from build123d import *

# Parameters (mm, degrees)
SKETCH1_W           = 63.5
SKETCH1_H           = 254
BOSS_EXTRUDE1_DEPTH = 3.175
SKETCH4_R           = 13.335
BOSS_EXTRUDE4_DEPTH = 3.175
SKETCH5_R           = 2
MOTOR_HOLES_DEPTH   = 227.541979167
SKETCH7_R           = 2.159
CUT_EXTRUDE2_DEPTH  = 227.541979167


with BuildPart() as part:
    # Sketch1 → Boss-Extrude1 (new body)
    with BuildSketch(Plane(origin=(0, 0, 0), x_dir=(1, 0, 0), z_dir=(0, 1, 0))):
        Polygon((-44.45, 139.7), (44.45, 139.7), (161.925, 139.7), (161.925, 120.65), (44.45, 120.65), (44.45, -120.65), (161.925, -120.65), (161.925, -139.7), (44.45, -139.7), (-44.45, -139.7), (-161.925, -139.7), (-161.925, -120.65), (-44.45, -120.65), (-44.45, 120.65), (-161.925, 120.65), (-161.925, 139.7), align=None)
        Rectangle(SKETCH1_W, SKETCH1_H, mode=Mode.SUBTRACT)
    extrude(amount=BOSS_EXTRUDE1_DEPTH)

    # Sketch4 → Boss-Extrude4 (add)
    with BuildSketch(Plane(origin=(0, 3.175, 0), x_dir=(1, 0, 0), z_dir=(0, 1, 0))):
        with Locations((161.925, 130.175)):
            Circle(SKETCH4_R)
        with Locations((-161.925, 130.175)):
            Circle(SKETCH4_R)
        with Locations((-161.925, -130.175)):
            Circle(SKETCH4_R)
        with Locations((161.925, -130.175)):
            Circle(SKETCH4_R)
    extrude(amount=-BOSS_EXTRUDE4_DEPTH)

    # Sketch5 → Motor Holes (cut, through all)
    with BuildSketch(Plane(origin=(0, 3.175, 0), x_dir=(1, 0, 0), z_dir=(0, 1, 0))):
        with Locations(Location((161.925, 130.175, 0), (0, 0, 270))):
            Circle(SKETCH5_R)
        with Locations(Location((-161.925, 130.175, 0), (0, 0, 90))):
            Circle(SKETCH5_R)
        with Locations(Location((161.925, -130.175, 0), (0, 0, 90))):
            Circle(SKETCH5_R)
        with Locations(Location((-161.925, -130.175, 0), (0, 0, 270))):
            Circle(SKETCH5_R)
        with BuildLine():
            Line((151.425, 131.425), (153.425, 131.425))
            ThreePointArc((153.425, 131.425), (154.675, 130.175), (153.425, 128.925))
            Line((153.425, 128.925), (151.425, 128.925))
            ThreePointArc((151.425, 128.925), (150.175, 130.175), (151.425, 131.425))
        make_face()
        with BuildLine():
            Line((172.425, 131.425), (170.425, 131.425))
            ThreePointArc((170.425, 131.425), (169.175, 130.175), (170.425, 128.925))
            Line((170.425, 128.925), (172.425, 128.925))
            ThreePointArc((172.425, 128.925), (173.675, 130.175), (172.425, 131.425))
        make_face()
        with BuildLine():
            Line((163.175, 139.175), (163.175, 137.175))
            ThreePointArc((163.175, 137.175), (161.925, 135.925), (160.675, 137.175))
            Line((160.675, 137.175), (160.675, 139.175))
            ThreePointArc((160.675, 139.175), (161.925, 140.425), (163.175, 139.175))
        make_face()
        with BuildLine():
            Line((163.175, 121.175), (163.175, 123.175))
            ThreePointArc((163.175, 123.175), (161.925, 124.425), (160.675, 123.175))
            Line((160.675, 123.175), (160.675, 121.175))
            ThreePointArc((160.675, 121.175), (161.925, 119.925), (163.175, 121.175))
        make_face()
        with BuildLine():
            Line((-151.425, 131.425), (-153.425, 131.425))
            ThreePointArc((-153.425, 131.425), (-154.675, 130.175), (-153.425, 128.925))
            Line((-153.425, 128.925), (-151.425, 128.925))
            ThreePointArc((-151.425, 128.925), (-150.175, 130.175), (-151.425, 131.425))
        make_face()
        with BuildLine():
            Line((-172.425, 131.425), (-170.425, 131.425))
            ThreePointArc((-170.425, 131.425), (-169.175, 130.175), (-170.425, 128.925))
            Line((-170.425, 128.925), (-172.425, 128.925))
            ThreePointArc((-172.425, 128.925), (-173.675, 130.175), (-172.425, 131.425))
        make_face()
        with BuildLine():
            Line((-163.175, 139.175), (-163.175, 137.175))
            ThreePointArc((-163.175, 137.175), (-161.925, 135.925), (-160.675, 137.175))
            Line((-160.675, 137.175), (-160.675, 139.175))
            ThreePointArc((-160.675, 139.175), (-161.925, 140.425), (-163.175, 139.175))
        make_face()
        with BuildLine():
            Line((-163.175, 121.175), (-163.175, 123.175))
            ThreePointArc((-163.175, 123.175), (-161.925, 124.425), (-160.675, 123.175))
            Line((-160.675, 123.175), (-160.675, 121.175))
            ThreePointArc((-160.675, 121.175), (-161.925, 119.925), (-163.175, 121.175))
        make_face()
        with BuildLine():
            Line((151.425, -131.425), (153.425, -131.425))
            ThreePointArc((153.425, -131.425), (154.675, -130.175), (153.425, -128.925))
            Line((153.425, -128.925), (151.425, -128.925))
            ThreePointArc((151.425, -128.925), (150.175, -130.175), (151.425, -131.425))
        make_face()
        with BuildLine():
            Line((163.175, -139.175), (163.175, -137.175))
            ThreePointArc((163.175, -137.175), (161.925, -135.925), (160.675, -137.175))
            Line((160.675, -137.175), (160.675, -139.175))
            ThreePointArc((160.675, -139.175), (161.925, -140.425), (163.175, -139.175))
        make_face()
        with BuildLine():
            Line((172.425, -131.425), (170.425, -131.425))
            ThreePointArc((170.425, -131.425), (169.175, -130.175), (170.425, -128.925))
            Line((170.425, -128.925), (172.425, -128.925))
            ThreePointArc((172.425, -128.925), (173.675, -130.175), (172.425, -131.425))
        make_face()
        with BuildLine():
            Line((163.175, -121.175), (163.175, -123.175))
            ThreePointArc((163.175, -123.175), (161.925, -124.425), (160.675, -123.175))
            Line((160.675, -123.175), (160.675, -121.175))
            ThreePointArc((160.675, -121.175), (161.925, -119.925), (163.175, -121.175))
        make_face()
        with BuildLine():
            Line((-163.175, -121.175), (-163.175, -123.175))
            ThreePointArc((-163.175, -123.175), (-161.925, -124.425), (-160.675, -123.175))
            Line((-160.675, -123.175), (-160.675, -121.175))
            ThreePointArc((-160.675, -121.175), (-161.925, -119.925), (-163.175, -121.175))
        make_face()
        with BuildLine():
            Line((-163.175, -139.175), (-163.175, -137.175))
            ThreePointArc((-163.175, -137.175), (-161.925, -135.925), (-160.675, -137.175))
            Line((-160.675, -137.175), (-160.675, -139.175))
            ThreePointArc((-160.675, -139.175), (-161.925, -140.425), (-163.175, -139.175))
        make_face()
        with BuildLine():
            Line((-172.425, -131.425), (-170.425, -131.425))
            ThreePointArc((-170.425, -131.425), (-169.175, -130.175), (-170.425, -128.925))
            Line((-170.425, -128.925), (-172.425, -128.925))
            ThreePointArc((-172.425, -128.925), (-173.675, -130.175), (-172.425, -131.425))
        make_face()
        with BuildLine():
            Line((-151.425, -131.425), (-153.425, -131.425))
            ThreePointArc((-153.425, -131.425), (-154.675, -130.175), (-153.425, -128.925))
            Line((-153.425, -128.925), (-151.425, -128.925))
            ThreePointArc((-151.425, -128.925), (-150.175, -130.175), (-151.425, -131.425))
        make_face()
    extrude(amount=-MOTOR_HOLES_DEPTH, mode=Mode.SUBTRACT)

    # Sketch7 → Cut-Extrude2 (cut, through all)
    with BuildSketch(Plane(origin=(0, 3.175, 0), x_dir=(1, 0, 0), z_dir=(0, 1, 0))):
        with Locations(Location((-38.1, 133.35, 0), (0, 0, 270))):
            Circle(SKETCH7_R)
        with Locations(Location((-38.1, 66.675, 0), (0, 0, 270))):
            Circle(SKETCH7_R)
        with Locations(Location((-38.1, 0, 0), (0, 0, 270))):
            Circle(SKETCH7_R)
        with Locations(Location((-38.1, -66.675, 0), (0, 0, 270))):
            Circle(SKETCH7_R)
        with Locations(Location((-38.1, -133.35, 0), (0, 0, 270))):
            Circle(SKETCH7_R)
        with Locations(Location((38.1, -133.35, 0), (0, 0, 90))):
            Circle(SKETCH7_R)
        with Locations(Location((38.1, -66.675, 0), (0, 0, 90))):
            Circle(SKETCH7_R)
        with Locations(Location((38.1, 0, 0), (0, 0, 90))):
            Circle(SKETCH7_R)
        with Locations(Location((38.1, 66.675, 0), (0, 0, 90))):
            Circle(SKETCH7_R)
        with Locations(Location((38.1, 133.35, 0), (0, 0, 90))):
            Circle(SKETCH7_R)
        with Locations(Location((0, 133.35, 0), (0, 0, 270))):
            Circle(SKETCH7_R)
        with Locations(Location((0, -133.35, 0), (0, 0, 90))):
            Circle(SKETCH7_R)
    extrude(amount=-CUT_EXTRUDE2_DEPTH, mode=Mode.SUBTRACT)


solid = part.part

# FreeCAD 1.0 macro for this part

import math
import FreeCAD as App
import Part
import Sketcher

V = App.Vector
Q = App.Units.Quantity


def add_polygon(sketch, points):
    """Adds a closed chain of lines whose ends are joined by coincident constraints."""
    first, n = sketch.GeometryCount, len(points)
    for a, b in zip(points, points[1:] + points[:1]):
        sketch.addGeometry(Part.LineSegment(App.Vector(*a, 0), App.Vector(*b, 0)), False)
    for i in range(n):
        sketch.addConstraint(Sketcher.Constraint("Coincident", first + i, 2, first + (i + 1) % n, 1))

doc = App.newDocument("Part")
body = doc.addObject("PartDesign::Body", "Body")

sketch1 = doc.addObject("Sketcher::SketchObject", "Sketch")
body.addObject(sketch1)
sketch1.AttachmentSupport = (doc.XZ_Plane, [""])
sketch1.MapMode = "FlatFace"
add_polygon(sketch1, [(162, -140), (-162, -140), (-162, -121), (-44, -121), (-44, 121), (-162, 121), (-162, 140), (162, 140), (162, 121), (44, 121), (44, -121), (162, -121)])
add_polygon(sketch1, [(-32, 127), (-32, -127), (32, -127), (32, 127)])
sketch1.addConstraint([
    Sketcher.Constraint("Horizontal", 0),
    Sketcher.Constraint("Vertical", 1),
    Sketcher.Constraint("Horizontal", 2),
    Sketcher.Constraint("Vertical", 3),
    Sketcher.Constraint("Horizontal", 4),
    Sketcher.Constraint("Vertical", 5),
    Sketcher.Constraint("Horizontal", 6),
    Sketcher.Constraint("Vertical", 7),
    Sketcher.Constraint("Horizontal", 8),
    Sketcher.Constraint("Vertical", 9),
    Sketcher.Constraint("Horizontal", 10),
    Sketcher.Constraint("Vertical", 11),
    Sketcher.Constraint("Vertical", 12),
    Sketcher.Constraint("Horizontal", 13),
    Sketcher.Constraint("Vertical", 14),
    Sketcher.Constraint("Horizontal", 15),
    Sketcher.Constraint("Symmetric", 0, 2, 6, 2, -1, 1),
    Sketcher.Constraint("Symmetric", 2, 2, 8, 2, -1, 1),
    Sketcher.Constraint("Symmetric", 4, 2, 10, 2, -1, 1),
    Sketcher.Constraint("Symmetric", 12, 2, 14, 2, -1, 1),
    Sketcher.Constraint("Symmetric", 4, 2, 7, 2, -2),
    Sketcher.Constraint("DistanceY", 12, 2, 12, 1, Q("10 in")),
    Sketcher.Constraint("DistanceX", 13, 1, 13, 2, Q("2.5 in")),
    Sketcher.Constraint("DistanceY", 3, 1, 3, 2, Q("9.5 in")),
    Sketcher.Constraint("DistanceY", 0, 2, 5, 2, Q("11 in")),
    Sketcher.Constraint("DistanceX", 12, 2, 9, 2, Q("3 in")),
    Sketcher.Constraint("DistanceX", 0, 2, 0, 1, Q("12.75 in")),
])
pad1 = doc.addObject("PartDesign::Pad", "Pad")
body.addObject(pad1)
pad1.Profile = sketch1
pad1.Length = Q("0.125 in")
pad1.Reversed = True

sketch2 = doc.addObject("Sketcher::SketchObject", "Sketch001")
body.addObject(sketch2)
sketch2.AttachmentSupport = (doc.XZ_Plane, [""])
sketch2.MapMode = "FlatFace"
sketch2.AttachmentOffset = App.Placement(V(0, 0, -0.125 * 25.4), App.Rotation())
sketch2.addGeometry([
    Part.Circle(V(162, -130, 0), V(0, 0, 1), 13),
    Part.Circle(V(-162, -130, 0), V(0, 0, 1), 13),
    Part.Circle(V(-162, 130, 0), V(0, 0, 1), 13),
    Part.Circle(V(162, 130, 0), V(0, 0, 1), 13),
], False)
sketch2.addConstraint([
    Sketcher.Constraint("Equal", 0, 1),
    Sketcher.Constraint("Equal", 1, 2),
    Sketcher.Constraint("Equal", 2, 3),
    Sketcher.Constraint("Symmetric", 0, 3, 2, 3, -1, 1),
    Sketcher.Constraint("Symmetric", 1, 3, 3, 3, -1, 1),
    Sketcher.Constraint("Symmetric", 0, 3, 1, 3, -2),
    Sketcher.Constraint("Diameter", 0, Q("1.05 in")),
    Sketcher.Constraint("DistanceX", 1, 3, 0, 3, Q("12.75 in")),
    Sketcher.Constraint("DistanceY", 1, 3, 2, 3, Q("10.25 in")),
])
pad2 = doc.addObject("PartDesign::Pad", "Pad001")
body.addObject(pad2)
pad2.Profile = sketch2
pad2.Length = Q("0.125 in")

sketch3 = doc.addObject("Sketcher::SketchObject", "Sketch002")
body.addObject(sketch3)
sketch3.AttachmentSupport = (doc.XZ_Plane, [""])
sketch3.MapMode = "FlatFace"
sketch3.AttachmentOffset = App.Placement(V(0, 0, -0.125 * 25.4), App.Rotation())
sketch3.addGeometry([
    Part.Circle(V(161.9, -130.2, 0), V(0, 0, 1), 2),
    Part.Circle(V(-161.9, -130.2, 0), V(0, 0, 1), 2),
    Part.Circle(V(161.9, 130.2, 0), V(0, 0, 1), 2),
    Part.Circle(V(-161.9, 130.2, 0), V(0, 0, 1), 2),
    Part.LineSegment(V(153.4, -131.4, 0), V(151.4, -131.4, 0)),
    Part.ArcOfCircle(Part.Circle(V(151.4, -130.2, 0), V(0, 0, 1), 1.2), math.radians(90), math.radians(270)),
    Part.LineSegment(V(151.4, -128.9, 0), V(153.4, -128.9, 0)),
    Part.ArcOfCircle(Part.Circle(V(153.4, -130.2, 0), V(0, 0, 1), 1.2), math.radians(-90), math.radians(90)),
    Part.LineSegment(V(172.4, -131.4, 0), V(170.4, -131.4, 0)),
    Part.ArcOfCircle(Part.Circle(V(170.4, -130.2, 0), V(0, 0, 1), 1.2), math.radians(90), math.radians(270)),
    Part.LineSegment(V(170.4, -128.9, 0), V(172.4, -128.9, 0)),
    Part.ArcOfCircle(Part.Circle(V(172.4, -130.2, 0), V(0, 0, 1), 1.2), math.radians(-90), math.radians(90)),
    Part.LineSegment(V(163.2, -137.2, 0), V(163.2, -139.2, 0)),
    Part.ArcOfCircle(Part.Circle(V(161.9, -139.2, 0), V(0, 0, 1), 1.2), math.radians(180), math.radians(360)),
    Part.LineSegment(V(160.7, -139.2, 0), V(160.7, -137.2, 0)),
    Part.ArcOfCircle(Part.Circle(V(161.9, -137.2, 0), V(0, 0, 1), 1.2), math.radians(0), math.radians(180)),
    Part.LineSegment(V(163.2, -121.2, 0), V(163.2, -123.2, 0)),
    Part.ArcOfCircle(Part.Circle(V(161.9, -123.2, 0), V(0, 0, 1), 1.2), math.radians(180), math.radians(360)),
    Part.LineSegment(V(160.7, -123.2, 0), V(160.7, -121.2, 0)),
    Part.ArcOfCircle(Part.Circle(V(161.9, -121.2, 0), V(0, 0, 1), 1.2), math.radians(0), math.radians(180)),
    Part.LineSegment(V(-151.4, -131.4, 0), V(-153.4, -131.4, 0)),
    Part.ArcOfCircle(Part.Circle(V(-153.4, -130.2, 0), V(0, 0, 1), 1.2), math.radians(90), math.radians(270)),
    Part.LineSegment(V(-153.4, -128.9, 0), V(-151.4, -128.9, 0)),
    Part.ArcOfCircle(Part.Circle(V(-151.4, -130.2, 0), V(0, 0, 1), 1.2), math.radians(-90), math.radians(90)),
    Part.LineSegment(V(-170.4, -131.4, 0), V(-172.4, -131.4, 0)),
    Part.ArcOfCircle(Part.Circle(V(-172.4, -130.2, 0), V(0, 0, 1), 1.2), math.radians(90), math.radians(270)),
    Part.LineSegment(V(-172.4, -128.9, 0), V(-170.4, -128.9, 0)),
    Part.ArcOfCircle(Part.Circle(V(-170.4, -130.2, 0), V(0, 0, 1), 1.2), math.radians(-90), math.radians(90)),
    Part.LineSegment(V(-163.2, -139.2, 0), V(-163.2, -137.2, 0)),
    Part.ArcOfCircle(Part.Circle(V(-161.9, -137.2, 0), V(0, 0, 1), 1.2), math.radians(0), math.radians(180)),
    Part.LineSegment(V(-160.7, -137.2, 0), V(-160.7, -139.2, 0)),
    Part.ArcOfCircle(Part.Circle(V(-161.9, -139.2, 0), V(0, 0, 1), 1.2), math.radians(180), math.radians(360)),
    Part.LineSegment(V(-163.2, -123.2, 0), V(-163.2, -121.2, 0)),
    Part.ArcOfCircle(Part.Circle(V(-161.9, -121.2, 0), V(0, 0, 1), 1.2), math.radians(0), math.radians(180)),
    Part.LineSegment(V(-160.7, -121.2, 0), V(-160.7, -123.2, 0)),
    Part.ArcOfCircle(Part.Circle(V(-161.9, -123.2, 0), V(0, 0, 1), 1.2), math.radians(180), math.radians(360)),
    Part.LineSegment(V(151.4, 131.4, 0), V(153.4, 131.4, 0)),
    Part.ArcOfCircle(Part.Circle(V(153.4, 130.2, 0), V(0, 0, 1), 1.2), math.radians(-90), math.radians(90)),
    Part.LineSegment(V(153.4, 128.9, 0), V(151.4, 128.9, 0)),
    Part.ArcOfCircle(Part.Circle(V(151.4, 130.2, 0), V(0, 0, 1), 1.2), math.radians(90), math.radians(270)),
    Part.LineSegment(V(163.2, 139.2, 0), V(163.2, 137.2, 0)),
    Part.ArcOfCircle(Part.Circle(V(161.9, 137.2, 0), V(0, 0, 1), 1.2), math.radians(180), math.radians(360)),
    Part.LineSegment(V(160.7, 137.2, 0), V(160.7, 139.2, 0)),
    Part.ArcOfCircle(Part.Circle(V(161.9, 139.2, 0), V(0, 0, 1), 1.2), math.radians(0), math.radians(180)),
    Part.LineSegment(V(170.4, 131.4, 0), V(172.4, 131.4, 0)),
    Part.ArcOfCircle(Part.Circle(V(172.4, 130.2, 0), V(0, 0, 1), 1.2), math.radians(-90), math.radians(90)),
    Part.LineSegment(V(172.4, 128.9, 0), V(170.4, 128.9, 0)),
    Part.ArcOfCircle(Part.Circle(V(170.4, 130.2, 0), V(0, 0, 1), 1.2), math.radians(90), math.radians(270)),
    Part.LineSegment(V(163.2, 123.2, 0), V(163.2, 121.2, 0)),
    Part.ArcOfCircle(Part.Circle(V(161.9, 121.2, 0), V(0, 0, 1), 1.2), math.radians(180), math.radians(360)),
    Part.LineSegment(V(160.7, 121.2, 0), V(160.7, 123.2, 0)),
    Part.ArcOfCircle(Part.Circle(V(161.9, 123.2, 0), V(0, 0, 1), 1.2), math.radians(0), math.radians(180)),
    Part.LineSegment(V(-163.2, 121.2, 0), V(-163.2, 123.2, 0)),
    Part.ArcOfCircle(Part.Circle(V(-161.9, 123.2, 0), V(0, 0, 1), 1.2), math.radians(0), math.radians(180)),
    Part.LineSegment(V(-160.7, 123.2, 0), V(-160.7, 121.2, 0)),
    Part.ArcOfCircle(Part.Circle(V(-161.9, 121.2, 0), V(0, 0, 1), 1.2), math.radians(180), math.radians(360)),
    Part.LineSegment(V(-163.2, 137.2, 0), V(-163.2, 139.2, 0)),
    Part.ArcOfCircle(Part.Circle(V(-161.9, 139.2, 0), V(0, 0, 1), 1.2), math.radians(0), math.radians(180)),
    Part.LineSegment(V(-160.7, 139.2, 0), V(-160.7, 137.2, 0)),
    Part.ArcOfCircle(Part.Circle(V(-161.9, 137.2, 0), V(0, 0, 1), 1.2), math.radians(180), math.radians(360)),
    Part.LineSegment(V(-172.4, 131.4, 0), V(-170.4, 131.4, 0)),
    Part.ArcOfCircle(Part.Circle(V(-170.4, 130.2, 0), V(0, 0, 1), 1.2), math.radians(-90), math.radians(90)),
    Part.LineSegment(V(-170.4, 128.9, 0), V(-172.4, 128.9, 0)),
    Part.ArcOfCircle(Part.Circle(V(-172.4, 130.2, 0), V(0, 0, 1), 1.2), math.radians(90), math.radians(270)),
    Part.LineSegment(V(-153.4, 131.4, 0), V(-151.4, 131.4, 0)),
    Part.ArcOfCircle(Part.Circle(V(-151.4, 130.2, 0), V(0, 0, 1), 1.2), math.radians(-90), math.radians(90)),
    Part.LineSegment(V(-151.4, 128.9, 0), V(-153.4, 128.9, 0)),
    Part.ArcOfCircle(Part.Circle(V(-153.4, 130.2, 0), V(0, 0, 1), 1.2), math.radians(90), math.radians(270)),
], False)
sketch3.addConstraint([
    Sketcher.Constraint("Tangent", 4, 2, 5, 2),
    Sketcher.Constraint("Tangent", 5, 1, 6, 1),
    Sketcher.Constraint("Tangent", 6, 2, 7, 2),
    Sketcher.Constraint("Tangent", 7, 1, 4, 1),
    Sketcher.Constraint("Tangent", 8, 2, 9, 2),
    Sketcher.Constraint("Tangent", 9, 1, 10, 1),
    Sketcher.Constraint("Tangent", 10, 2, 11, 2),
    Sketcher.Constraint("Tangent", 11, 1, 8, 1),
    Sketcher.Constraint("Tangent", 12, 2, 13, 2),
    Sketcher.Constraint("Tangent", 13, 1, 14, 1),
    Sketcher.Constraint("Tangent", 14, 2, 15, 2),
    Sketcher.Constraint("Tangent", 15, 1, 12, 1),
    Sketcher.Constraint("Tangent", 16, 2, 17, 2),
    Sketcher.Constraint("Tangent", 17, 1, 18, 1),
    Sketcher.Constraint("Tangent", 18, 2, 19, 2),
    Sketcher.Constraint("Tangent", 19, 1, 16, 1),
    Sketcher.Constraint("Tangent", 20, 2, 21, 2),
    Sketcher.Constraint("Tangent", 21, 1, 22, 1),
    Sketcher.Constraint("Tangent", 22, 2, 23, 2),
    Sketcher.Constraint("Tangent", 23, 1, 20, 1),
    Sketcher.Constraint("Tangent", 24, 2, 25, 2),
    Sketcher.Constraint("Tangent", 25, 1, 26, 1),
    Sketcher.Constraint("Tangent", 26, 2, 27, 2),
    Sketcher.Constraint("Tangent", 27, 1, 24, 1),
    Sketcher.Constraint("Tangent", 28, 2, 29, 2),
    Sketcher.Constraint("Tangent", 29, 1, 30, 1),
    Sketcher.Constraint("Tangent", 30, 2, 31, 2),
    Sketcher.Constraint("Tangent", 31, 1, 28, 1),
    Sketcher.Constraint("Tangent", 32, 2, 33, 2),
    Sketcher.Constraint("Tangent", 33, 1, 34, 1),
    Sketcher.Constraint("Tangent", 34, 2, 35, 2),
    Sketcher.Constraint("Tangent", 35, 1, 32, 1),
    Sketcher.Constraint("Tangent", 36, 2, 37, 2),
    Sketcher.Constraint("Tangent", 37, 1, 38, 1),
    Sketcher.Constraint("Tangent", 38, 2, 39, 2),
    Sketcher.Constraint("Tangent", 39, 1, 36, 1),
    Sketcher.Constraint("Tangent", 40, 2, 41, 2),
    Sketcher.Constraint("Tangent", 41, 1, 42, 1),
    Sketcher.Constraint("Tangent", 42, 2, 43, 2),
    Sketcher.Constraint("Tangent", 43, 1, 40, 1),
    Sketcher.Constraint("Tangent", 44, 2, 45, 2),
    Sketcher.Constraint("Tangent", 45, 1, 46, 1),
    Sketcher.Constraint("Tangent", 46, 2, 47, 2),
    Sketcher.Constraint("Tangent", 47, 1, 44, 1),
    Sketcher.Constraint("Tangent", 48, 2, 49, 2),
    Sketcher.Constraint("Tangent", 49, 1, 50, 1),
    Sketcher.Constraint("Tangent", 50, 2, 51, 2),
    Sketcher.Constraint("Tangent", 51, 1, 48, 1),
    Sketcher.Constraint("Tangent", 52, 2, 53, 2),
    Sketcher.Constraint("Tangent", 53, 1, 54, 1),
    Sketcher.Constraint("Tangent", 54, 2, 55, 2),
    Sketcher.Constraint("Tangent", 55, 1, 52, 1),
    Sketcher.Constraint("Tangent", 56, 2, 57, 2),
    Sketcher.Constraint("Tangent", 57, 1, 58, 1),
    Sketcher.Constraint("Tangent", 58, 2, 59, 2),
    Sketcher.Constraint("Tangent", 59, 1, 56, 1),
    Sketcher.Constraint("Tangent", 60, 2, 61, 2),
    Sketcher.Constraint("Tangent", 61, 1, 62, 1),
    Sketcher.Constraint("Tangent", 62, 2, 63, 2),
    Sketcher.Constraint("Tangent", 63, 1, 60, 1),
    Sketcher.Constraint("Tangent", 64, 2, 65, 2),
    Sketcher.Constraint("Tangent", 65, 1, 66, 1),
    Sketcher.Constraint("Tangent", 66, 2, 67, 2),
    Sketcher.Constraint("Tangent", 67, 1, 64, 1),
    Sketcher.Constraint("Horizontal", 4),
    Sketcher.Constraint("Horizontal", 6),
    Sketcher.Constraint("Horizontal", 8),
    Sketcher.Constraint("Horizontal", 10),
    Sketcher.Constraint("Vertical", 12),
    Sketcher.Constraint("Vertical", 14),
    Sketcher.Constraint("Vertical", 16),
    Sketcher.Constraint("Vertical", 18),
    Sketcher.Constraint("Horizontal", 20),
    Sketcher.Constraint("Horizontal", 22),
    Sketcher.Constraint("Horizontal", 24),
    Sketcher.Constraint("Horizontal", 26),
    Sketcher.Constraint("Vertical", 28),
    Sketcher.Constraint("Vertical", 30),
    Sketcher.Constraint("Vertical", 32),
    Sketcher.Constraint("Vertical", 34),
    Sketcher.Constraint("Horizontal", 36),
    Sketcher.Constraint("Horizontal", 38),
    Sketcher.Constraint("Vertical", 40),
    Sketcher.Constraint("Vertical", 42),
    Sketcher.Constraint("Horizontal", 44),
    Sketcher.Constraint("Horizontal", 46),
    Sketcher.Constraint("Vertical", 48),
    Sketcher.Constraint("Vertical", 50),
    Sketcher.Constraint("Vertical", 52),
    Sketcher.Constraint("Vertical", 54),
    Sketcher.Constraint("Vertical", 56),
    Sketcher.Constraint("Vertical", 58),
    Sketcher.Constraint("Horizontal", 60),
    Sketcher.Constraint("Horizontal", 62),
    Sketcher.Constraint("Horizontal", 64),
    Sketcher.Constraint("Horizontal", 66),
    Sketcher.Constraint("Equal", 0, 1),
    Sketcher.Constraint("Equal", 1, 2),
    Sketcher.Constraint("Equal", 2, 3),
    Sketcher.Constraint("Equal", 7, 9),
    Sketcher.Constraint("Equal", 11, 13),
    Sketcher.Constraint("Equal", 15, 17),
    Sketcher.Constraint("Equal", 19, 21),
    Sketcher.Constraint("Equal", 23, 25),
    Sketcher.Constraint("Equal", 27, 29),
    Sketcher.Constraint("Equal", 31, 33),
    Sketcher.Constraint("Equal", 35, 37),
    Sketcher.Constraint("Equal", 39, 41),
    Sketcher.Constraint("Equal", 43, 45),
    Sketcher.Constraint("Equal", 47, 49),
    Sketcher.Constraint("Equal", 51, 53),
    Sketcher.Constraint("Equal", 55, 57),
    Sketcher.Constraint("Equal", 59, 61),
    Sketcher.Constraint("Equal", 63, 65),
    Sketcher.Constraint("Symmetric", 1, 3, 2, 3, -1, 1),
    Sketcher.Constraint("Symmetric", 0, 3, 3, 3, -1, 1),
    Sketcher.Constraint("Symmetric", 21, 3, 37, 3, -1, 1),
    Sketcher.Constraint("Symmetric", 29, 3, 41, 3, -1, 1),
    Sketcher.Constraint("Symmetric", 25, 3, 45, 3, -1, 1),
    Sketcher.Constraint("Symmetric", 33, 3, 49, 3, -1, 1),
    Sketcher.Constraint("Symmetric", 17, 3, 53, 3, -1, 1),
    Sketcher.Constraint("Symmetric", 13, 3, 57, 3, -1, 1),
    Sketcher.Constraint("Symmetric", 9, 3, 61, 3, -1, 1),
    Sketcher.Constraint("Symmetric", 5, 3, 65, 3, -1, 1),
    Sketcher.Constraint("Symmetric", 0, 3, 1, 3, -2),
    Sketcher.Constraint("Symmetric", 7, 3, 21, 3, -2),
    Sketcher.Constraint("Symmetric", 11, 3, 25, 3, -2),
    Sketcher.Constraint("Symmetric", 15, 3, 29, 3, -2),
    Sketcher.Constraint("Symmetric", 19, 3, 33, 3, -2),
    Sketcher.Constraint("Horizontal", 1, 3, 5, 3),
    Sketcher.Constraint("Horizontal", 7, 3, 9, 3),
    Sketcher.Constraint("Horizontal", 13, 3, 31, 3),
    Sketcher.Constraint("Horizontal", 17, 3, 35, 3),
    Sketcher.Constraint("Horizontal", 51, 3, 53, 3),
    Sketcher.Constraint("Horizontal", 49, 3, 55, 3),
    Sketcher.Constraint("Horizontal", 43, 3, 57, 3),
    Sketcher.Constraint("Horizontal", 41, 3, 59, 3),
    Sketcher.Constraint("Vertical", 2, 3, 13, 3),
    Sketcher.Constraint("Vertical", 15, 3, 17, 3),
    Sketcher.Constraint("Vertical", 5, 3, 39, 3),
    Sketcher.Constraint("Vertical", 9, 3, 47, 3),
    Sketcher.Constraint("Vertical", 27, 3, 61, 3),
    Sketcher.Constraint("Vertical", 25, 3, 63, 3),
    Sketcher.Constraint("Vertical", 23, 3, 65, 3),
    Sketcher.Constraint("Vertical", 21, 3, 67, 3),
    Sketcher.Constraint("Equal", 6, 8),
    Sketcher.Constraint("Equal", 66, 12),
    Sketcher.Constraint("Equal", 14, 16),
    Sketcher.Constraint("Diameter", 0, 4.0),
    Sketcher.Constraint("Radius", 5, 1.25),
    Sketcher.Constraint("DistanceX", -1, 1, 0, 3, Q("6.375 in")),
    Sketcher.Constraint("DistanceY", 0, 3, -1, 1, Q("5.125 in")),
    Sketcher.Constraint("DistanceX", 4, 2, 4, 1, 2.0),
    Sketcher.Constraint("DistanceX", -1, 1, 5, 3, 151.425),
    Sketcher.Constraint("DistanceX", -1, 1, 9, 3, 170.425),
    Sketcher.Constraint("DistanceY", 13, 3, -1, 1, 139.175),
    Sketcher.Constraint("DistanceY", 17, 3, -1, 1, 123.175),
])
pocket1 = doc.addObject("PartDesign::Pocket", "Pocket")
body.addObject(pocket1)
pocket1.Profile = sketch3
pocket1.Type = "ThroughAll"
pocket1.Reversed = True

sketch4 = doc.addObject("Sketcher::SketchObject", "Sketch003")
body.addObject(sketch4)
sketch4.AttachmentSupport = (doc.XZ_Plane, [""])
sketch4.MapMode = "FlatFace"
sketch4.AttachmentOffset = App.Placement(V(0, 0, -0.125 * 25.4), App.Rotation())
sketch4.addGeometry([
    Part.Circle(V(-38.1, -133.3, 0), V(0, 0, 1), 2.2),
    Part.Circle(V(-38.1, -66.7, 0), V(0, 0, 1), 2.2),
    Part.Circle(V(-38.1, 0, 0), V(0, 0, 1), 2.2),
    Part.Circle(V(-38.1, 66.7, 0), V(0, 0, 1), 2.2),
    Part.Circle(V(-38.1, 133.3, 0), V(0, 0, 1), 2.2),
    Part.Circle(V(38.1, 133.3, 0), V(0, 0, 1), 2.2),
    Part.Circle(V(38.1, 66.7, 0), V(0, 0, 1), 2.2),
    Part.Circle(V(38.1, 0, 0), V(0, 0, 1), 2.2),
    Part.Circle(V(38.1, -66.7, 0), V(0, 0, 1), 2.2),
    Part.Circle(V(38.1, -133.3, 0), V(0, 0, 1), 2.2),
    Part.Circle(V(0, -133.3, 0), V(0, 0, 1), 2.2),
    Part.Circle(V(0, 133.3, 0), V(0, 0, 1), 2.2),
], False)
sketch4.addConstraint([
    Sketcher.Constraint("Equal", 0, 1),
    Sketcher.Constraint("Equal", 1, 2),
    Sketcher.Constraint("Equal", 2, 3),
    Sketcher.Constraint("Equal", 3, 4),
    Sketcher.Constraint("Equal", 4, 5),
    Sketcher.Constraint("Equal", 5, 6),
    Sketcher.Constraint("Equal", 6, 7),
    Sketcher.Constraint("Equal", 7, 8),
    Sketcher.Constraint("Equal", 8, 9),
    Sketcher.Constraint("Equal", 9, 10),
    Sketcher.Constraint("Equal", 10, 11),
    Sketcher.Constraint("Symmetric", 0, 3, 5, 3, -1, 1),
    Sketcher.Constraint("Symmetric", 1, 3, 6, 3, -1, 1),
    Sketcher.Constraint("Symmetric", 2, 3, 7, 3, -1, 1),
    Sketcher.Constraint("Symmetric", 3, 3, 8, 3, -1, 1),
    Sketcher.Constraint("Symmetric", 4, 3, 9, 3, -1, 1),
    Sketcher.Constraint("Symmetric", 10, 3, 11, 3, -1, 1),
    Sketcher.Constraint("Symmetric", 4, 3, 5, 3, -2),
    Sketcher.Constraint("Symmetric", 3, 3, 6, 3, -2),
    Sketcher.Constraint("PointOnObject", 2, 3, -1),
    Sketcher.Constraint("PointOnObject", 10, 3, -2),
    Sketcher.Constraint("Horizontal", 9, 3, 10, 3),
    Sketcher.Constraint("Vertical", 0, 3, 1, 3),
    Sketcher.Constraint("Vertical", 1, 3, 2, 3),
    Sketcher.Constraint("Diameter", 0, Q("0.17 in")),
    Sketcher.Constraint("DistanceX", 4, 3, 5, 3, Q("3 in")),
    Sketcher.Constraint("DistanceY", 0, 3, 4, 3, Q("10.5 in")),
    Sketcher.Constraint("DistanceY", 1, 3, 3, 3, Q("5.25 in")),
])
pocket2 = doc.addObject("PartDesign::Pocket", "Pocket001")
body.addObject(pocket2)
pocket2.Profile = sketch4
pocket2.Type = "ThroughAll"
pocket2.Reversed = True

doc.recompute()
